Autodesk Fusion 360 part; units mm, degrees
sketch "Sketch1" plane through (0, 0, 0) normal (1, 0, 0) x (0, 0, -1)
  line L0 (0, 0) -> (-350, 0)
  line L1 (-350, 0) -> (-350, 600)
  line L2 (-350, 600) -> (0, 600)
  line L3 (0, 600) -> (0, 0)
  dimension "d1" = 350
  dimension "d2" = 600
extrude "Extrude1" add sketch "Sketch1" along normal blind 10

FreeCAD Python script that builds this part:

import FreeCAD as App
import Part
import Sketcher

doc = App.newDocument("Part")
body = doc.addObject("PartDesign::Body", "Body")

sketch1 = body.newObject("Sketcher::SketchObject", "Sketch")
sketch1.AttachmentSupport = (doc.getObject("YZ_Plane"), [""])
sketch1.MapMode = "FlatFace"
sketch1.addGeometry([
    Part.LineSegment(App.Vector(0, 350, 0), App.Vector(0, 0, 0)),
    Part.LineSegment(App.Vector(0, 0, 0), App.Vector(600, 0, 0)),
    Part.LineSegment(App.Vector(600, 0, 0), App.Vector(600, 350, 0)),
    Part.LineSegment(App.Vector(600, 350, 0), App.Vector(0, 350, 0)),
], False)
sketch1.addConstraint([
    Sketcher.Constraint("Coincident", 0, 2, 1, 1),
    Sketcher.Constraint("Coincident", 1, 2, 2, 1),
    Sketcher.Constraint("Coincident", 2, 2, 3, 1),
    Sketcher.Constraint("Coincident", 3, 2, 0, 1),
    Sketcher.Constraint("Vertical", 0),
    Sketcher.Constraint("Horizontal", 1),
    Sketcher.Constraint("Vertical", 2),
    Sketcher.Constraint("Horizontal", 3),
    Sketcher.Constraint("Coincident", 0, 2, -1, 1),
    Sketcher.Constraint("DistanceX", 1, 1, 1, 2, 600.0),
    Sketcher.Constraint("DistanceY", 0, 2, 0, 1, 350.0),
])
pad1 = body.newObject("PartDesign::Pad", "Pad")
pad1.Profile = sketch1
pad1.Length = 10

doc.recompute()
